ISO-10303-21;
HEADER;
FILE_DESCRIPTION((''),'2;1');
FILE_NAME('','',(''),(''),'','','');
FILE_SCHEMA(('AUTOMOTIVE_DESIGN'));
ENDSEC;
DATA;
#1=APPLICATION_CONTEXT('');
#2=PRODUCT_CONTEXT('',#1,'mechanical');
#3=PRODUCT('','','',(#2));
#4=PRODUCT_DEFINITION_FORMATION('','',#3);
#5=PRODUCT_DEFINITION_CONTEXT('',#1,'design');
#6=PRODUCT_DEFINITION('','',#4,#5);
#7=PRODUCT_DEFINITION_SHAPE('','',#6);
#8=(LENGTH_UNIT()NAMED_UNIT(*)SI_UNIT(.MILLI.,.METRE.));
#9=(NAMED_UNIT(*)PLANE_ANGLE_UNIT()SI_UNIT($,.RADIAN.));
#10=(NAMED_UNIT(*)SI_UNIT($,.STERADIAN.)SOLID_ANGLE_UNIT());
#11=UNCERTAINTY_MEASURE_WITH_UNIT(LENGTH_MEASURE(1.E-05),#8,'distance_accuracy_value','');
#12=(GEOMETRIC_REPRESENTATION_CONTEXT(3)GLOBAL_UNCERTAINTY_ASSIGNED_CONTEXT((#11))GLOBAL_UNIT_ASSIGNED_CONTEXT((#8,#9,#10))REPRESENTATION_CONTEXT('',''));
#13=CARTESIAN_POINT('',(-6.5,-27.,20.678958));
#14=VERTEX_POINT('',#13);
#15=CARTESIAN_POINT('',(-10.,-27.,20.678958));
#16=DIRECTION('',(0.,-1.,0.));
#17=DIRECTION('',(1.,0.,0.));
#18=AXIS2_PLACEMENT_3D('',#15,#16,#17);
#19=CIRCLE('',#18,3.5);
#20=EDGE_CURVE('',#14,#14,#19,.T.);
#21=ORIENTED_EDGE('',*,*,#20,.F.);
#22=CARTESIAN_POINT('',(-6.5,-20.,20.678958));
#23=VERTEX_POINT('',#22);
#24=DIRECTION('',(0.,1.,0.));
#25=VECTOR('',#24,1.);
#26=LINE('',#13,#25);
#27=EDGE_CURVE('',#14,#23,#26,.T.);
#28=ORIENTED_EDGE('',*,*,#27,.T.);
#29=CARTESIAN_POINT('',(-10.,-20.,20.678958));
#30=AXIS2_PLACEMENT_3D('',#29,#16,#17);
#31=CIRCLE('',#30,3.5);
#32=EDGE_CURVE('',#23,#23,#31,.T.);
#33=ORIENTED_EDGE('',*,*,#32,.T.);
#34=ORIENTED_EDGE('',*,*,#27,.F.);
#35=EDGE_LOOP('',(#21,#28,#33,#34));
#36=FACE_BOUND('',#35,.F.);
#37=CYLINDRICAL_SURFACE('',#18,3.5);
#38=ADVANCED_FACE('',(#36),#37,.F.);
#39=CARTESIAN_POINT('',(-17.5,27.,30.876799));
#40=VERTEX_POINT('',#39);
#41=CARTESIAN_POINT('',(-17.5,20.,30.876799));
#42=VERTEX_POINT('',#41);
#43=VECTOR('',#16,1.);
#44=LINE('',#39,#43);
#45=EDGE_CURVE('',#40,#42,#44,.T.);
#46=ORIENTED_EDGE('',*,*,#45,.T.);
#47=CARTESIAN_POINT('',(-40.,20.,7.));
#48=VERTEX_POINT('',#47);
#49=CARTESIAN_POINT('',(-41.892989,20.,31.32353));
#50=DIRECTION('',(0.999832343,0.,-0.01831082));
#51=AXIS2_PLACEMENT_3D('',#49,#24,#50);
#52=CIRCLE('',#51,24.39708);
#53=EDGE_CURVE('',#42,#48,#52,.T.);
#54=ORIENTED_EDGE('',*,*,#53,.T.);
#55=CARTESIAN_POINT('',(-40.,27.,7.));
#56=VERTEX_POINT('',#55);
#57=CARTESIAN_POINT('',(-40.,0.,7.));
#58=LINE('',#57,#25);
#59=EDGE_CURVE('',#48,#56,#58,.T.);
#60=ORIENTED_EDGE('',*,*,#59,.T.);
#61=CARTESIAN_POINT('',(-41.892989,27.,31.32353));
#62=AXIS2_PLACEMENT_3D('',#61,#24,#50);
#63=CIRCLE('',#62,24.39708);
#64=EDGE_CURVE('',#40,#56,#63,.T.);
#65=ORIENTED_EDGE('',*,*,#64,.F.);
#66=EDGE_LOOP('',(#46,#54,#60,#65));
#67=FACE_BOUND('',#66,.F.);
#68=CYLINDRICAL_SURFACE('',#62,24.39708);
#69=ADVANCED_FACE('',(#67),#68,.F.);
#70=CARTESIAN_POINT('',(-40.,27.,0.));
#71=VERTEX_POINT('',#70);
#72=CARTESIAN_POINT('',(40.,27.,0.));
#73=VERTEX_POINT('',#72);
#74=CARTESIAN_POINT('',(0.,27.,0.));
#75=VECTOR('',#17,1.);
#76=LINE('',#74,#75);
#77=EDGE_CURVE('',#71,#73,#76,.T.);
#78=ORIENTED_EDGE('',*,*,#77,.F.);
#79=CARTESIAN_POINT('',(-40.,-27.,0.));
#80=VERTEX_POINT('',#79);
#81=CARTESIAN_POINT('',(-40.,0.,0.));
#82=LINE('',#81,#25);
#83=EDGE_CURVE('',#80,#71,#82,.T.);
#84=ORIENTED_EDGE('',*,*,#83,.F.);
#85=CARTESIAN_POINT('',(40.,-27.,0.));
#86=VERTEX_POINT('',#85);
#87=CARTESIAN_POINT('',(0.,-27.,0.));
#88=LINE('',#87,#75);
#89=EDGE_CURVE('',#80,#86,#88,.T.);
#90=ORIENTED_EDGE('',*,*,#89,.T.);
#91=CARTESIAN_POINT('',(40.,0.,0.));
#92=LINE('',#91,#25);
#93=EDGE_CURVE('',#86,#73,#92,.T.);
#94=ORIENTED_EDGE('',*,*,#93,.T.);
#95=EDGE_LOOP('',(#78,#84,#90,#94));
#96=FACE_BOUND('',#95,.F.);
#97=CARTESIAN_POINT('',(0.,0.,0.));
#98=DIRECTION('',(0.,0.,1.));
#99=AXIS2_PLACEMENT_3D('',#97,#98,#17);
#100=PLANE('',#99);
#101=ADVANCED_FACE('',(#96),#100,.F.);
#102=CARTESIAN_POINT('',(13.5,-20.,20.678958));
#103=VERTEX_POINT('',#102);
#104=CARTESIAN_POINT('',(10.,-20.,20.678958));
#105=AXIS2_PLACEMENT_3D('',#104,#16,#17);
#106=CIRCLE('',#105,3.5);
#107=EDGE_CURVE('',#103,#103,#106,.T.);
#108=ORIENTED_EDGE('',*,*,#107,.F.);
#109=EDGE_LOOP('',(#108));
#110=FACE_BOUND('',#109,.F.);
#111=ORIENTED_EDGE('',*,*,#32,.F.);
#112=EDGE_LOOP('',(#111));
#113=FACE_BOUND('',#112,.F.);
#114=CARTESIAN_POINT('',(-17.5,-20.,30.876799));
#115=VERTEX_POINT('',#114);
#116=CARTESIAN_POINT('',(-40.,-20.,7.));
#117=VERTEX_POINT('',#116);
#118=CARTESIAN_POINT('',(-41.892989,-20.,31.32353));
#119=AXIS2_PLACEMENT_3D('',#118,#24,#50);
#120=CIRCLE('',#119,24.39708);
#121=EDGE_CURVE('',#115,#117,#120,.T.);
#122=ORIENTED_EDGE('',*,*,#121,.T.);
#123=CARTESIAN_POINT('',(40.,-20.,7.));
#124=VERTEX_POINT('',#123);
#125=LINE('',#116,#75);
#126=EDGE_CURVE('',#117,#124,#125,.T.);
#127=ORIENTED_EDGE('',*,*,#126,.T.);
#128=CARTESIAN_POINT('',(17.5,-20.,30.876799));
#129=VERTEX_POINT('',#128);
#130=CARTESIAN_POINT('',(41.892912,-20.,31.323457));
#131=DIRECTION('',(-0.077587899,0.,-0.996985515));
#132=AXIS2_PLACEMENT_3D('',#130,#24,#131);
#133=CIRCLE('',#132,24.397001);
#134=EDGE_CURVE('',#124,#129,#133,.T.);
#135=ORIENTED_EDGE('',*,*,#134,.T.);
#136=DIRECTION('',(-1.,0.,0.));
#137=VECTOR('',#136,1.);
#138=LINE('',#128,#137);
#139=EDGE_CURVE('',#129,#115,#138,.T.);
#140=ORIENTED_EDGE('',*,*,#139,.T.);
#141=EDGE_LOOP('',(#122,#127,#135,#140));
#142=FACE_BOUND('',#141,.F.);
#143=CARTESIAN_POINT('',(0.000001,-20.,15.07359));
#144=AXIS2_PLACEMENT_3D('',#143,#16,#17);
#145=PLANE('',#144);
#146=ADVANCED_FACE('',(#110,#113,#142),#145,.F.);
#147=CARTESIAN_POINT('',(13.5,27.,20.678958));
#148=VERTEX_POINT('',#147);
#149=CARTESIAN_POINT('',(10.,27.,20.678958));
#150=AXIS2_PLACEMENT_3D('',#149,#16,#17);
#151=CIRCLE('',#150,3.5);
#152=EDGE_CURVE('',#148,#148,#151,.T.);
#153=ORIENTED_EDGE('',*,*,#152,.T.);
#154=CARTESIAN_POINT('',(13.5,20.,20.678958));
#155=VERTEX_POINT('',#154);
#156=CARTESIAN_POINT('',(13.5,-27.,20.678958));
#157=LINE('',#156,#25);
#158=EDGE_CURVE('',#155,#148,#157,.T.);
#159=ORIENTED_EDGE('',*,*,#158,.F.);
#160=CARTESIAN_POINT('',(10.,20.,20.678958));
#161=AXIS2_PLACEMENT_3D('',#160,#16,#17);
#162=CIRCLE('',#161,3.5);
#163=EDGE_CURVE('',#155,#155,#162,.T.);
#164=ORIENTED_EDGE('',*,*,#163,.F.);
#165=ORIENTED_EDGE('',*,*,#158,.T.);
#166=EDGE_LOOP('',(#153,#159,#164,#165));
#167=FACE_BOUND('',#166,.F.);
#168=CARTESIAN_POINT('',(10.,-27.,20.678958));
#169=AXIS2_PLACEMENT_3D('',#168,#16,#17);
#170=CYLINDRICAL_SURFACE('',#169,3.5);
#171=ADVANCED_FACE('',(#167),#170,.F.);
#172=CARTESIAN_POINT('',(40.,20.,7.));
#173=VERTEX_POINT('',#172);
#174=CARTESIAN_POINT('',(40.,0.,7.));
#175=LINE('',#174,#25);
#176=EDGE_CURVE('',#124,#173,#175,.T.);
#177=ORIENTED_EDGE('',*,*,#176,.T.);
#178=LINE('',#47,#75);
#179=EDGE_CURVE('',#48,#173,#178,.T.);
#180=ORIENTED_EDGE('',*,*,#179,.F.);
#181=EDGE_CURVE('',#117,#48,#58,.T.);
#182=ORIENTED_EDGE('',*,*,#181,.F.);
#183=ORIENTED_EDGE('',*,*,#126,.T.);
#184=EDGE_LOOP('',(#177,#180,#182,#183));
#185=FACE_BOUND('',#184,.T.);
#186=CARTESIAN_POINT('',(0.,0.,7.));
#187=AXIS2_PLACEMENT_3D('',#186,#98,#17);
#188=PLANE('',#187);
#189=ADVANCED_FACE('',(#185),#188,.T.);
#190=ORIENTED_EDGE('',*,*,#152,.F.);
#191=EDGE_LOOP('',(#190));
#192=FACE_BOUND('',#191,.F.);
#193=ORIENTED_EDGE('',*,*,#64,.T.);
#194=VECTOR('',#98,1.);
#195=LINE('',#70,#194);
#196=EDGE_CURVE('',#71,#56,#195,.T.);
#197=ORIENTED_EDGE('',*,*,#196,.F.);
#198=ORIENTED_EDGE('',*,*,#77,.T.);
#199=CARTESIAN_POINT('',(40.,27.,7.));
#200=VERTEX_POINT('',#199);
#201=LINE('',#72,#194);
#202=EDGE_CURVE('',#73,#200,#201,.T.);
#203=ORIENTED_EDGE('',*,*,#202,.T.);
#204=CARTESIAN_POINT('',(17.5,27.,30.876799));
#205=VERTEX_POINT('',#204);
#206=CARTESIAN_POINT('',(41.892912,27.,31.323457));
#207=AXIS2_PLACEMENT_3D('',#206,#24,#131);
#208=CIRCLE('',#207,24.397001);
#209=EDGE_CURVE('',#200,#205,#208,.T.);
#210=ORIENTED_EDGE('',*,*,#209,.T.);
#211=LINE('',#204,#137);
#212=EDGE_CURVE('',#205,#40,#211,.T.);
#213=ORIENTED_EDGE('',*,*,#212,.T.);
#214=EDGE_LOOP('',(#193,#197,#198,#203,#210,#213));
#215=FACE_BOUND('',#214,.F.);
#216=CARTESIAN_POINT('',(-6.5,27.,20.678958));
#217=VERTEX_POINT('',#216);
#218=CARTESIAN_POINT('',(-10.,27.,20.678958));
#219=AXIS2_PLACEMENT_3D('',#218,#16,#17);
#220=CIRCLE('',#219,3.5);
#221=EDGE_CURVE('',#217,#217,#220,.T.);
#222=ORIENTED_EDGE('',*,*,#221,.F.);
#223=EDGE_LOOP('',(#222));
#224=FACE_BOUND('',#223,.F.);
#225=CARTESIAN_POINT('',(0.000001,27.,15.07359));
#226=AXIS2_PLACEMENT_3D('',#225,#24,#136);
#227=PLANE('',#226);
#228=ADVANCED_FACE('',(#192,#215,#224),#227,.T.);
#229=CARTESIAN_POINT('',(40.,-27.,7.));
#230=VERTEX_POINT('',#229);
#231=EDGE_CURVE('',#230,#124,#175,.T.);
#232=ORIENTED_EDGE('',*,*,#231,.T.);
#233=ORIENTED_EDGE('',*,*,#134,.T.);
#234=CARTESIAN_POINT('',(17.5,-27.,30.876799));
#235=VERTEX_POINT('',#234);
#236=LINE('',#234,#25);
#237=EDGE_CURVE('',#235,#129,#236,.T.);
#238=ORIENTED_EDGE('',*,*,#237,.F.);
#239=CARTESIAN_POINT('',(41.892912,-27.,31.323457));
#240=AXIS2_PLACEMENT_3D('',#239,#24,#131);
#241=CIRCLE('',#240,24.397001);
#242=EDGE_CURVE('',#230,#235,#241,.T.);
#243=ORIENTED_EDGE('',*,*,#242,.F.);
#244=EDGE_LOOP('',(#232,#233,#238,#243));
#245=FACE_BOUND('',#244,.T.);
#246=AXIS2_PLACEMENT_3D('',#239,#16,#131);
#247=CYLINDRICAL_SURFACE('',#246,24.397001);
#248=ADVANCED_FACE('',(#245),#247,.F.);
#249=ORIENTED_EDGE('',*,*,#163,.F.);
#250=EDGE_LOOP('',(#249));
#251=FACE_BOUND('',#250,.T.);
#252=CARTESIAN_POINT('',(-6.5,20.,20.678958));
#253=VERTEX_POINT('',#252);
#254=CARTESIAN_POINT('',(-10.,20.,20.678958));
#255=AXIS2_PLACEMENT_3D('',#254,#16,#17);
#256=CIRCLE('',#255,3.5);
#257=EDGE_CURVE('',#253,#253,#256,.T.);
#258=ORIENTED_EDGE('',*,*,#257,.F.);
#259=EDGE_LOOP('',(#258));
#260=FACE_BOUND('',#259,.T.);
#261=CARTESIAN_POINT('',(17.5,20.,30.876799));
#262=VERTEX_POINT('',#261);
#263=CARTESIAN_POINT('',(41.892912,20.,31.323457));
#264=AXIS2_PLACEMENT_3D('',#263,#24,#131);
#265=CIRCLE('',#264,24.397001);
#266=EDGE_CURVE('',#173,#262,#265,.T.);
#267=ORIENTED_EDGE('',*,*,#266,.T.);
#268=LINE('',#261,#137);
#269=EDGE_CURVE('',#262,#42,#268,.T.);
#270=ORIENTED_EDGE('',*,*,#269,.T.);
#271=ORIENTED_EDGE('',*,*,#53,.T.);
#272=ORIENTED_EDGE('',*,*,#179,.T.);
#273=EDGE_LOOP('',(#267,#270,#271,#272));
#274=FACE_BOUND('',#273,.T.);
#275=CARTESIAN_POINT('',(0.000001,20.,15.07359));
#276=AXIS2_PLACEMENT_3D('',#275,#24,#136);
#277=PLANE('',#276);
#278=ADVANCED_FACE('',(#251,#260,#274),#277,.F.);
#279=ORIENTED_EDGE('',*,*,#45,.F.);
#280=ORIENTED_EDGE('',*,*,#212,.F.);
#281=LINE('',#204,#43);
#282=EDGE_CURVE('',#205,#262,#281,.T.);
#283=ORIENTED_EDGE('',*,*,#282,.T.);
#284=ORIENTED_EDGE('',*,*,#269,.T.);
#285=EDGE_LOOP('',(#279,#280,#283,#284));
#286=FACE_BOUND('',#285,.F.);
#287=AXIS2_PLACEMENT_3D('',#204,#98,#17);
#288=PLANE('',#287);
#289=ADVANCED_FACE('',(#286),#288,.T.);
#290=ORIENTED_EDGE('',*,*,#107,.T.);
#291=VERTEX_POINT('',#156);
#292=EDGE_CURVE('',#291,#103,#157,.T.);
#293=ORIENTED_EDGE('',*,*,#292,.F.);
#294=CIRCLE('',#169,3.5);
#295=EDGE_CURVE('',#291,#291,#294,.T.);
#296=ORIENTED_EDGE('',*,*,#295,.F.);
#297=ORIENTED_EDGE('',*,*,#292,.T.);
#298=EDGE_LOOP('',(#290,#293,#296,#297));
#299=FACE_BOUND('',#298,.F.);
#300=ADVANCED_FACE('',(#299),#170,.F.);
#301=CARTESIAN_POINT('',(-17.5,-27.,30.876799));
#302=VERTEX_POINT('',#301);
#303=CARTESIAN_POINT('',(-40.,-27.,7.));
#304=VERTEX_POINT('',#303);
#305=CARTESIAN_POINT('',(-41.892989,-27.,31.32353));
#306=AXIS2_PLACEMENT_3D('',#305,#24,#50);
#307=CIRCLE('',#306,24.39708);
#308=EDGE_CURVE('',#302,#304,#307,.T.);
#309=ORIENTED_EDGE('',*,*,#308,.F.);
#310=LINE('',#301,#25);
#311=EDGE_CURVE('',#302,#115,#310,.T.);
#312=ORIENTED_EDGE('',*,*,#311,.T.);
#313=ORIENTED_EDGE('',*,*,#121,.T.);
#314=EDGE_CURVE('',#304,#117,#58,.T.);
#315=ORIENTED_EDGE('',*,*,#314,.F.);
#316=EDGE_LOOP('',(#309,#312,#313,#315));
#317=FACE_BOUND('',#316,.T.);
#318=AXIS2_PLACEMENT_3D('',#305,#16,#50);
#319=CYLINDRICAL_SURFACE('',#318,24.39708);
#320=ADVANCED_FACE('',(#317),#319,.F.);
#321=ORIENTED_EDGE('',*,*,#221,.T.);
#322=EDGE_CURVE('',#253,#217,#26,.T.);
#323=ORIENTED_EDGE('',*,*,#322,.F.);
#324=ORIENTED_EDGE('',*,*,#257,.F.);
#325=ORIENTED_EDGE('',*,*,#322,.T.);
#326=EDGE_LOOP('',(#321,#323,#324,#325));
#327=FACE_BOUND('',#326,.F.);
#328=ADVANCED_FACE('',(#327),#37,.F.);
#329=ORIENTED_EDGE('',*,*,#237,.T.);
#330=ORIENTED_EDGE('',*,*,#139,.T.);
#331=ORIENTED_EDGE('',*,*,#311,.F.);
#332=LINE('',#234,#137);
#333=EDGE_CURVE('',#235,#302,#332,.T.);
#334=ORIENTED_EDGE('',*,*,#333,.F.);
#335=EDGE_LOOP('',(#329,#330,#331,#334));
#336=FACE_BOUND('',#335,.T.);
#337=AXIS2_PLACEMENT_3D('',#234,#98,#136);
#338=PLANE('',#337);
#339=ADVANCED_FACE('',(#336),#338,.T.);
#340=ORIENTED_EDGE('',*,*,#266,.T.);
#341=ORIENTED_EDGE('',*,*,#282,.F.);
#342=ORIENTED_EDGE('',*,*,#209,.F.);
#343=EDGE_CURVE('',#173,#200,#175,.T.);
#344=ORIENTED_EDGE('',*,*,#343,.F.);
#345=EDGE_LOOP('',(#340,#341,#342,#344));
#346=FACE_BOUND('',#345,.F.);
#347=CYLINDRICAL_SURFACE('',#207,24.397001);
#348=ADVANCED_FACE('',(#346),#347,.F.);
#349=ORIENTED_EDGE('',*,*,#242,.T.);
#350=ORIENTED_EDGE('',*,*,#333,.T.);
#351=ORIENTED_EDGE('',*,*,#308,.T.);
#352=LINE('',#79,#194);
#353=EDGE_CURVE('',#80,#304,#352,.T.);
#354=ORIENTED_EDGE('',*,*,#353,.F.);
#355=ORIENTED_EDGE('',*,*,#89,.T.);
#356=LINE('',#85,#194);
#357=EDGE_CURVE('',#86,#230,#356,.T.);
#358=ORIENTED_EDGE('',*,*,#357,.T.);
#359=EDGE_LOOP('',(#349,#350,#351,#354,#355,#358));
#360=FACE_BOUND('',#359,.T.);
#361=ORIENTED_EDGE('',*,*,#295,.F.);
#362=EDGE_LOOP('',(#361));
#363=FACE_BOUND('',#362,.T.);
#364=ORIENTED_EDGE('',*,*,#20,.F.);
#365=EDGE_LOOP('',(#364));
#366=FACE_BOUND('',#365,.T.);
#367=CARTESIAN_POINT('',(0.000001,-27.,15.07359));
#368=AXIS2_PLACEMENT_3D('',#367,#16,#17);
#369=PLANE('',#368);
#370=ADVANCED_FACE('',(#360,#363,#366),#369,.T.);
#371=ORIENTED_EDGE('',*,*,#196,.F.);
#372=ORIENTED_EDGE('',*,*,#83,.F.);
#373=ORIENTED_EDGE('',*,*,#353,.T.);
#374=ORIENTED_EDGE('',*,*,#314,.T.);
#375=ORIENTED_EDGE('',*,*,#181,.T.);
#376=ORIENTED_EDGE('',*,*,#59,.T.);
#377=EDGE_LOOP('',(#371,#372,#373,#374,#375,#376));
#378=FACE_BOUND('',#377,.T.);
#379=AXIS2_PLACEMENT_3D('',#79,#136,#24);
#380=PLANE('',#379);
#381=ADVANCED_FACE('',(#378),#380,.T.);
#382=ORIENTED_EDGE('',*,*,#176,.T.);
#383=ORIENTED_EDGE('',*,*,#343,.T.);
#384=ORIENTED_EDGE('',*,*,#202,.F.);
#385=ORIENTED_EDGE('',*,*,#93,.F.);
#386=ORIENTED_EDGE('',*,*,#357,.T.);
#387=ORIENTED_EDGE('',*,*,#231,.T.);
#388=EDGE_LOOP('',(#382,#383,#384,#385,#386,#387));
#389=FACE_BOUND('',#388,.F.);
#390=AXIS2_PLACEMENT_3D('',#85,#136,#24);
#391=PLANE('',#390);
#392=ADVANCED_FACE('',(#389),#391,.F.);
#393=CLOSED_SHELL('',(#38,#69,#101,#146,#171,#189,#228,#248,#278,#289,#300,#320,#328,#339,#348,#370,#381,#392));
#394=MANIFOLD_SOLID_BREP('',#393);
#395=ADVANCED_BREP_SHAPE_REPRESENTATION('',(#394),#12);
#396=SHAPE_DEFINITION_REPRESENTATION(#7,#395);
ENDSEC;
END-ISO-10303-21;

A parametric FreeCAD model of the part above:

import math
import FreeCAD as App
import Part
import Sketcher

V = App.Vector

doc = App.newDocument("Part")
body = doc.addObject("PartDesign::Body", "Body")

sketch1 = doc.addObject("Sketcher::SketchObject", "Sketch")
body.addObject(sketch1)
sketch1.AttachmentSupport = (doc.XY_Plane, [""])
sketch1.MapMode = "FlatFace"
sketch1.addGeometry([
    Part.LineSegment(V(-40, 27, 0), V(-40, -27, 0)),
    Part.LineSegment(V(-40, -27, 0), V(40, -27, 0)),
    Part.LineSegment(V(40, -27, 0), V(40, 27, 0)),
    Part.LineSegment(V(40, 27, 0), V(-40, 27, 0)),
], False)
sketch1.addConstraint([
    Sketcher.Constraint("Coincident", 0, 2, 1, 1),
    Sketcher.Constraint("Coincident", 1, 2, 2, 1),
    Sketcher.Constraint("Coincident", 2, 2, 3, 1),
    Sketcher.Constraint("Coincident", 3, 2, 0, 1),
    Sketcher.Constraint("Vertical", 0),
    Sketcher.Constraint("Horizontal", 1),
    Sketcher.Constraint("Vertical", 2),
    Sketcher.Constraint("Horizontal", 3),
    Sketcher.Constraint("Symmetric", 0, 2, 2, 2, -1, 1),
    Sketcher.Constraint("DistanceX", 1, 1, 1, 2, 80.0),
    Sketcher.Constraint("DistanceY", 0, 2, 0, 1, 54.0),
])
pad1 = doc.addObject("PartDesign::Pad", "Pad")
body.addObject(pad1)
pad1.Profile = sketch1
pad1.Length = 7

sketch2 = doc.addObject("Sketcher::SketchObject", "Sketch001")
body.addObject(sketch2)
sketch2.AttachmentSupport = (doc.XZ_Plane, [""])
sketch2.MapMode = "FlatFace"
sketch2.AttachmentOffset = App.Placement(V(0, 0, 27), App.Rotation())
sketch2.addGeometry([
    Part.LineSegment(V(18, 31, 0), V(-18, 31, 0)),
    Part.ArcOfCircle(Part.Circle(V(-42, 31, 0), V(0, 0, 1), 24), math.radians(-86), math.radians(-1)),
    Part.LineSegment(V(-40, 7, 0), V(40, 7, 0)),
    Part.ArcOfCircle(Part.Circle(V(42, 31, 0), V(0, 0, 1), 24), math.radians(-179), math.radians(-94)),
], False)
sketch2.addConstraint([
    Sketcher.Constraint("Coincident", 0, 2, 1, 2),
    Sketcher.Constraint("Coincident", 1, 1, 2, 1),
    Sketcher.Constraint("Coincident", 2, 2, 3, 2),
    Sketcher.Constraint("Coincident", 3, 1, 0, 1),
    Sketcher.Constraint("Horizontal", 0),
    Sketcher.Constraint("Horizontal", 2),
    Sketcher.Constraint("DistanceX", 0, 2, 0, 1, 35.0),
    Sketcher.Constraint("DistanceX", 2, 1, 2, 2, 80.0),
    Sketcher.Constraint("DistanceX", 1, 1, -1, 1, 40.0),
    Sketcher.Constraint("DistanceY", -1, 1, 1, 1, 7.0),
    Sketcher.Constraint("Radius", 3, 24.397001),
    Sketcher.Constraint("DistanceX", 0, 2, -1, 1, 17.5),
    Sketcher.Constraint("Radius", 1, 24.39708),
    Sketcher.Constraint("DistanceY", -1, 1, 0, 2, 30.876799),
])
pad2 = doc.addObject("PartDesign::Pad", "Pad001")
body.addObject(pad2)
pad2.Profile = sketch2
pad2.Length = 7
pad2.Reversed = True
body2 = doc.addObject("PartDesign::Body", "Body001")
doc.recompute()

body2.BaseFeature = body
doc.recompute()

mirroring = doc.addObject("Part::Mirroring", "Mirroring")
mirroring.Source = body
mirroring.Base = V(0, 0, 0)
mirroring.Normal = V(0, -1, 0)
body3 = doc.addObject("PartDesign::Body", "Body002")
body3.BaseFeature = mirroring
boolean = doc.addObject("PartDesign::Boolean", "Boolean")
body2.addObject(boolean)
boolean.Type = "Fuse"
boolean.addObjects([body3])
doc.recompute()

sketch3 = doc.addObject("Sketcher::SketchObject", "Sketch002")
body2.addObject(sketch3)
sketch3.AttachmentSupport = (doc.getObject("XZ_Plane001"), [""])
sketch3.MapMode = "FlatFace"
sketch3.AttachmentOffset = App.Placement(V(0, 0, 27), App.Rotation())
sketch3.addGeometry([
    Part.Circle(V(-10, 20.7, 0), V(0, 0, 1), 3.5),
    Part.Circle(V(10, 20.7, 0), V(0, 0, 1), 3.5),
], False)
sketch3.addConstraint([
    Sketcher.Constraint("Equal", 0, 1),
    Sketcher.Constraint("Symmetric", 0, 3, 1, 3, -2),
    Sketcher.Constraint("Diameter", 0, 7.0),
    Sketcher.Constraint("DistanceX", 0, 3, -1, 1, 10.0),
    Sketcher.Constraint("DistanceY", -1, 1, 0, 3, 20.678958),
])
pocket1 = doc.addObject("PartDesign::Pocket", "Pocket")
body2.addObject(pocket1)
pocket1.Profile = sketch3
pocket1.Type = "ThroughAll"
mirroring.Visibility = False

doc.recompute()
